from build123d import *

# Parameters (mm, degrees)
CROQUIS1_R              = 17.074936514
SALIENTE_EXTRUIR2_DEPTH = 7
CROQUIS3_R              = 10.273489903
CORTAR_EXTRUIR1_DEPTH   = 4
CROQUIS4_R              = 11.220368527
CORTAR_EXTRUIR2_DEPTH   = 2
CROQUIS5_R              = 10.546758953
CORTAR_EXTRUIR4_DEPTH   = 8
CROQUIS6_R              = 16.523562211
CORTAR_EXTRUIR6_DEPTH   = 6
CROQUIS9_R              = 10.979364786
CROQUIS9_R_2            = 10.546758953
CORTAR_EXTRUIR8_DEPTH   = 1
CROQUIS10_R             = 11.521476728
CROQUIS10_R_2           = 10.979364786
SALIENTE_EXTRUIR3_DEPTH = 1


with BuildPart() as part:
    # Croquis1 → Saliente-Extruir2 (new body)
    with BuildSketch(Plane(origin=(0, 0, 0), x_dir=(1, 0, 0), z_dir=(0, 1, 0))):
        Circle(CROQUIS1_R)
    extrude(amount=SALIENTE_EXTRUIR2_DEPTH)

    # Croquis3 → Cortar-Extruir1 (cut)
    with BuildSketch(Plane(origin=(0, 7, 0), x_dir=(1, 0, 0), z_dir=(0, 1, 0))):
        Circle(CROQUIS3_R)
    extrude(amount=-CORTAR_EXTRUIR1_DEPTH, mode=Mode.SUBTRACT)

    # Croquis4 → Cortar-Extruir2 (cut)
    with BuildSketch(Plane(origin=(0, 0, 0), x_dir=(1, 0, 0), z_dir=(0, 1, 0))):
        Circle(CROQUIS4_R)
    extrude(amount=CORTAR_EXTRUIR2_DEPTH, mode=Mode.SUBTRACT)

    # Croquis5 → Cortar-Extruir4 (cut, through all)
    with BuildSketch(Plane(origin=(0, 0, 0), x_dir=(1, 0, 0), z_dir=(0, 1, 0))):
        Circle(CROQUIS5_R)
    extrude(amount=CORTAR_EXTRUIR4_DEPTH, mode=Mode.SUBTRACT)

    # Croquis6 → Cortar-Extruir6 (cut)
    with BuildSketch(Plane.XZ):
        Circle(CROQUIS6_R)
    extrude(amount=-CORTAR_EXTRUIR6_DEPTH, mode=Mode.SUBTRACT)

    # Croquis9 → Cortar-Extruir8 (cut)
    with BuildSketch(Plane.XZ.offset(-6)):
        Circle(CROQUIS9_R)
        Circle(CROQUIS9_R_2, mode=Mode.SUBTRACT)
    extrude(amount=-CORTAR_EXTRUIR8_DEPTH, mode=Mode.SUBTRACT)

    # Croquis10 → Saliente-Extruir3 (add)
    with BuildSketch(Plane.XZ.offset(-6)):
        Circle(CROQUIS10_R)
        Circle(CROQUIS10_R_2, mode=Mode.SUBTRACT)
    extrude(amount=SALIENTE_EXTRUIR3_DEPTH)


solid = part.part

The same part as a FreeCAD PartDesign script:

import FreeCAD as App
import Part
import Sketcher
from FreeCAD import Vector
Q = App.Units.Quantity

doc = App.newDocument("Part")
params = doc.addObject("Spreadsheet::Sheet", "Params")
for row, (alias, value) in enumerate([
    ("pad1_length", "7 mm"),
    ("pocket1_length", "4 mm"),
    ("pocket2_length", "2 mm"),
    ("pocket4_length", "6 mm"),
    ("pocket5_length", "1 mm"),
    ("pad2_length", "1 mm"),
], start=1):
    params.set(f"A{row}", alias)
    params.set(f"B{row}", "=" + value)
    params.setAlias(f"B{row}", alias)

body = doc.addObject("PartDesign::Body", "Body")

# Sketch on XZ plane
sketch1 = body.newObject("Sketcher::SketchObject", "Sketch")
sketch1.AttachmentSupport = (doc.getObject("XZ_Plane"), [""])
sketch1.MapMode = "FlatFace"
sketch1.addGeometry(Part.Circle(Vector(0, 0, 0), Vector(0, 0, 1), 17), False)
sketch1.addConstraint(Sketcher.Constraint("Coincident", 0, 3, -1, 1))
sketch1.addConstraint(Sketcher.Constraint("Diameter", 0, Q("34.149873 mm")))
pad1 = body.newObject("PartDesign::Pad", "Pad")
pad1.Profile = sketch1
pad1.setExpression("Length", "Params.pad1_length")
pad1.Reversed = True

# Sketch on XZ plane
sketch2 = body.newObject("Sketcher::SketchObject", "Sketch001")
sketch2.AttachmentSupport = (doc.getObject("XZ_Plane"), [""])
sketch2.MapMode = "FlatFace"
sketch2.AttachmentOffset = App.Placement(Vector(0, 0, -7), App.Rotation())
sketch2.addGeometry(Part.Circle(Vector(0, 0, 0), Vector(0, 0, 1), 10), False)
sketch2.addConstraint(Sketcher.Constraint("Coincident", 0, 3, -1, 1))
sketch2.addConstraint(Sketcher.Constraint("Diameter", 0, Q("20.54698 mm")))
pocket1 = body.newObject("PartDesign::Pocket", "Pocket")
pocket1.Profile = sketch2
pocket1.setExpression("Length", "Params.pocket1_length")
pocket1.Reversed = True

# Sketch on XZ plane
sketch3 = body.newObject("Sketcher::SketchObject", "Sketch002")
sketch3.AttachmentSupport = (doc.getObject("XZ_Plane"), [""])
sketch3.MapMode = "FlatFace"
sketch3.addGeometry(Part.Circle(Vector(0, 0, 0), Vector(0, 0, 1), 11), False)
sketch3.addConstraint(Sketcher.Constraint("Coincident", 0, 3, -1, 1))
sketch3.addConstraint(Sketcher.Constraint("Diameter", 0, Q("22.440737 mm")))
pocket2 = body.newObject("PartDesign::Pocket", "Pocket001")
pocket2.Profile = sketch3
pocket2.setExpression("Length", "Params.pocket2_length")

# Sketch on XZ plane
sketch4 = body.newObject("Sketcher::SketchObject", "Sketch003")
sketch4.AttachmentSupport = (doc.getObject("XZ_Plane"), [""])
sketch4.MapMode = "FlatFace"
sketch4.addGeometry(Part.Circle(Vector(0, 0, 0), Vector(0, 0, 1), 11), False)
sketch4.addConstraint(Sketcher.Constraint("Coincident", 0, 3, -1, 1))
sketch4.addConstraint(Sketcher.Constraint("Diameter", 0, Q("21.093518 mm")))
pocket3 = body.newObject("PartDesign::Pocket", "Pocket002")
pocket3.Profile = sketch4
pocket3.Type = "ThroughAll"

# Sketch on XZ plane
sketch5 = body.newObject("Sketcher::SketchObject", "Sketch004")
sketch5.AttachmentSupport = (doc.getObject("XZ_Plane"), [""])
sketch5.MapMode = "FlatFace"
sketch5.addGeometry(Part.Circle(Vector(0, 0, 0), Vector(0, 0, 1), 17), False)
sketch5.addConstraint(Sketcher.Constraint("Coincident", 0, 3, -1, 1))
sketch5.addConstraint(Sketcher.Constraint("Diameter", 0, Q("33.047124 mm")))
pocket4 = body.newObject("PartDesign::Pocket", "Pocket003")
pocket4.Profile = sketch5
pocket4.setExpression("Length", "Params.pocket4_length")

# Sketch on XZ plane
sketch6 = body.newObject("Sketcher::SketchObject", "Sketch005")
sketch6.AttachmentSupport = (doc.getObject("XZ_Plane"), [""])
sketch6.MapMode = "FlatFace"
sketch6.AttachmentOffset = App.Placement(Vector(0, 0, -6), App.Rotation())
sketch6.addGeometry(Part.Circle(Vector(0, 0, 0), Vector(0, 0, 1), 11), False)
sketch6.addGeometry(Part.Circle(Vector(0, 0, 0), Vector(0, 0, 1), 11), False)
sketch6.addConstraint(Sketcher.Constraint("Coincident", 0, 3, -1, 1))
sketch6.addConstraint(Sketcher.Constraint("Coincident", 1, 3, -1, 1))
sketch6.addConstraint(Sketcher.Constraint("Diameter", 0, Q("21.95873 mm")))
sketch6.addConstraint(Sketcher.Constraint("Diameter", 1, Q("21.093518 mm")))
pocket5 = body.newObject("PartDesign::Pocket", "Pocket004")
pocket5.Profile = sketch6
pocket5.setExpression("Length", "Params.pocket5_length")

# Sketch on XZ plane
sketch7 = body.newObject("Sketcher::SketchObject", "Sketch006")
sketch7.AttachmentSupport = (doc.getObject("XZ_Plane"), [""])
sketch7.MapMode = "FlatFace"
sketch7.AttachmentOffset = App.Placement(Vector(0, 0, -6), App.Rotation())
sketch7.addGeometry(Part.Circle(Vector(0, 0, 0), Vector(0, 0, 1), 12), False)
sketch7.addGeometry(Part.Circle(Vector(0, 0, 0), Vector(0, 0, 1), 11), False)
sketch7.addConstraint(Sketcher.Constraint("Coincident", 0, 3, -1, 1))
sketch7.addConstraint(Sketcher.Constraint("Coincident", 1, 3, -1, 1))
sketch7.addConstraint(Sketcher.Constraint("Diameter", 1, Q("21.95873 mm")))
sketch7.addConstraint(Sketcher.Constraint("Diameter", 0, Q("23.042953 mm")))
pad2 = body.newObject("PartDesign::Pad", "Pad001")
pad2.Profile = sketch7
pad2.setExpression("Length", "Params.pad2_length")

doc.recompute()
